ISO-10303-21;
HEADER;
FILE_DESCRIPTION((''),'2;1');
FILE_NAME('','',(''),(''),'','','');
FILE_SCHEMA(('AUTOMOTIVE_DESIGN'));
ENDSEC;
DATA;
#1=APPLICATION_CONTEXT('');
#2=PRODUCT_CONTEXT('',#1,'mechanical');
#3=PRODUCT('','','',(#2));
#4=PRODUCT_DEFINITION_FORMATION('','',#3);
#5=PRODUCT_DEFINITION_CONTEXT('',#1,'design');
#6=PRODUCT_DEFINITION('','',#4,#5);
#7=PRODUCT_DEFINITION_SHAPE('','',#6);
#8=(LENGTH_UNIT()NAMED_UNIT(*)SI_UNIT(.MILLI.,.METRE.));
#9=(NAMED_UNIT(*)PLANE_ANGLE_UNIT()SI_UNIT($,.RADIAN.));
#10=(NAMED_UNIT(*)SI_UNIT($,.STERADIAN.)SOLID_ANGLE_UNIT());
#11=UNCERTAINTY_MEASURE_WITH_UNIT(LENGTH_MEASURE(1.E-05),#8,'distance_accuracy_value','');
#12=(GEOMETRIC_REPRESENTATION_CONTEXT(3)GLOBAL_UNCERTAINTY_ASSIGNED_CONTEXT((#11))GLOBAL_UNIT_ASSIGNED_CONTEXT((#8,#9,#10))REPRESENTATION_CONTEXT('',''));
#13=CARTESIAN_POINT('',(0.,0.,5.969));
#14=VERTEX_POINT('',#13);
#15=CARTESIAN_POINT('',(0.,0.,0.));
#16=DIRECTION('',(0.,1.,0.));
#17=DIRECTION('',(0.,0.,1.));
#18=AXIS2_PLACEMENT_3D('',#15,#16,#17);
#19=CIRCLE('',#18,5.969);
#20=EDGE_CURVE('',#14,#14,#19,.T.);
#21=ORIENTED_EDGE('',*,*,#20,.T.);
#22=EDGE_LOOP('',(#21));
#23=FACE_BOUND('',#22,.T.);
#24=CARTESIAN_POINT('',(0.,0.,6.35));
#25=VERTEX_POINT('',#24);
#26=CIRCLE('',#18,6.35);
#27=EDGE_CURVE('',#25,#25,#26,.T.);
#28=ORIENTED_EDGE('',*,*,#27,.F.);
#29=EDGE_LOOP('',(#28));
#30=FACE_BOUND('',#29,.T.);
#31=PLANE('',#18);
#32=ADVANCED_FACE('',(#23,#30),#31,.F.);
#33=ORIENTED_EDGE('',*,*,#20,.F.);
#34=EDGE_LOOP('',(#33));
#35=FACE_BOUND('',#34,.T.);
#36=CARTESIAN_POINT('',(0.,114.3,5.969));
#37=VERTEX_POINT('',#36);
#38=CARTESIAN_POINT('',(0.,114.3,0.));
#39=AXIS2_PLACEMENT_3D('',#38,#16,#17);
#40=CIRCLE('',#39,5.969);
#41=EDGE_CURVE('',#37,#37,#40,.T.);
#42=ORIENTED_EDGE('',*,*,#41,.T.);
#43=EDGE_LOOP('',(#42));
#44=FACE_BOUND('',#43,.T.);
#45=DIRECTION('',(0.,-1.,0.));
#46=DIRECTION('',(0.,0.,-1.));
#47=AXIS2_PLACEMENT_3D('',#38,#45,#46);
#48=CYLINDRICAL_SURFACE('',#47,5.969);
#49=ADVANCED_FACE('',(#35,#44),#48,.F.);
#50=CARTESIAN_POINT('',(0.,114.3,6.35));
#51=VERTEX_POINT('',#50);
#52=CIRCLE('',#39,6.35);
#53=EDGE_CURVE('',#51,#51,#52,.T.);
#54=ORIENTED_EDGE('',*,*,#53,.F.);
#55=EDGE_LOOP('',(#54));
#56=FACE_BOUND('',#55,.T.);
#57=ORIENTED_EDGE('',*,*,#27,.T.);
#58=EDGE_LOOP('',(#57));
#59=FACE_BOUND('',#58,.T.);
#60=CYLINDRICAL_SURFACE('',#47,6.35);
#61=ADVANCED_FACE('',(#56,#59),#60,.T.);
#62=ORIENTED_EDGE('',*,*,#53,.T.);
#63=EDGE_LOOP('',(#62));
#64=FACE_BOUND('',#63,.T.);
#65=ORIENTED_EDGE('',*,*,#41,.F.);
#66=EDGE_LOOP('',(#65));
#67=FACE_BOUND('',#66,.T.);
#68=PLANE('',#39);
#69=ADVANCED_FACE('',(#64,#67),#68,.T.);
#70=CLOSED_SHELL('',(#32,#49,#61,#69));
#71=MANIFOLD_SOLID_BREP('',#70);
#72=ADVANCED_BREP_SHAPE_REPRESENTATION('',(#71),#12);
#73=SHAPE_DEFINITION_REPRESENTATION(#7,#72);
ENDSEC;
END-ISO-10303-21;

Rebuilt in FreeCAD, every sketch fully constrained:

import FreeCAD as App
import Part
import Sketcher

V = App.Vector
Q = App.Units.Quantity

doc = App.newDocument("Part")
body = doc.addObject("PartDesign::Body", "Body")

# Sketch on XZ plane
sketch1 = body.newObject("Sketcher::SketchObject", "Sketch")
sketch1.AttachmentSupport = (doc.getObject("XZ_Plane"), [""])
sketch1.MapMode = "FlatFace"
sketch1.addGeometry([
    Part.Circle(V(0, 0, 0), V(0, 0, 1), 6.35),
    Part.Circle(V(0, 0, 0), V(0, 0, 1), 5.969),
], False)
sketch1.addConstraint([
    Sketcher.Constraint("Coincident", 0, 3, -1, 1),
    Sketcher.Constraint("Coincident", 1, 3, -1, 1),
    Sketcher.Constraint("Diameter", 0, Q("0.5 in")),
    Sketcher.Constraint("Diameter", 1, Q("0.47 in")),
])
pad1 = body.newObject("PartDesign::Pad", "Pad")
pad1.Profile = sketch1
pad1.Length = Q("4.5 in")
pad1.Reversed = True

doc.recompute()
